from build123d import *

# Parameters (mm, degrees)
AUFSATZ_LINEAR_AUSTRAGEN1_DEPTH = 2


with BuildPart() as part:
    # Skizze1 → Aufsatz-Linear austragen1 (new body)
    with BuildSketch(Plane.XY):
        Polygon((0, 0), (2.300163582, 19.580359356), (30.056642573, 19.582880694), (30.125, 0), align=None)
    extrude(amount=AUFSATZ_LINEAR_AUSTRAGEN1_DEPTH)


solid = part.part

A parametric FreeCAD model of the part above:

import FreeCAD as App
import Part
import Sketcher

V = App.Vector
Q = App.Units.Quantity


def add_polygon(sketch, points):
    """Adds a closed chain of lines whose ends are joined by coincident constraints."""
    first, n = sketch.GeometryCount, len(points)
    for a, b in zip(points, points[1:] + points[:1]):
        sketch.addGeometry(Part.LineSegment(App.Vector(*a, 0), App.Vector(*b, 0)), False)
    for i in range(n):
        sketch.addConstraint(Sketcher.Constraint("Coincident", first + i, 2, first + (i + 1) % n, 1))

doc = App.newDocument("Part")
params = doc.addObject("Spreadsheet::Sheet", "Params")
for row, (alias, value) in enumerate([
    ("pad1_length", "2 mm"),
], start=1):
    params.set(f"A{row}", alias)
    params.set(f"B{row}", "=" + value)
    params.setAlias(f"B{row}", alias)

body = doc.addObject("PartDesign::Body", "Body")

# Sketch on XY plane
sketch1 = body.newObject("Sketcher::SketchObject", "Sketch")
sketch1.AttachmentSupport = (doc.getObject("XY_Plane"), [""])
sketch1.MapMode = "FlatFace"
add_polygon(sketch1, [(2, 20), (0, 0), (30, 0), (30, 20)])  # lines 0-3
sketch1.addConstraint([
    Sketcher.Constraint("Horizontal", 1),
    Sketcher.Constraint("Coincident", 0, 2, -1, 1),
    Sketcher.Constraint("Angle", 0, Q("-96.7 deg")),
    Sketcher.Constraint("Angle", 2, Q("90.2 deg")),
    Sketcher.Constraint("DistanceX", 1, 1, 1, 2, 30.125),
    Sketcher.Constraint("Distance", 0, 19.715),
    Sketcher.Constraint("Distance", 2, 19.583),
])
pad1 = body.newObject("PartDesign::Pad", "Pad")
pad1.Profile = sketch1
pad1.setExpression("Length", "Params.pad1_length")

doc.recompute()
